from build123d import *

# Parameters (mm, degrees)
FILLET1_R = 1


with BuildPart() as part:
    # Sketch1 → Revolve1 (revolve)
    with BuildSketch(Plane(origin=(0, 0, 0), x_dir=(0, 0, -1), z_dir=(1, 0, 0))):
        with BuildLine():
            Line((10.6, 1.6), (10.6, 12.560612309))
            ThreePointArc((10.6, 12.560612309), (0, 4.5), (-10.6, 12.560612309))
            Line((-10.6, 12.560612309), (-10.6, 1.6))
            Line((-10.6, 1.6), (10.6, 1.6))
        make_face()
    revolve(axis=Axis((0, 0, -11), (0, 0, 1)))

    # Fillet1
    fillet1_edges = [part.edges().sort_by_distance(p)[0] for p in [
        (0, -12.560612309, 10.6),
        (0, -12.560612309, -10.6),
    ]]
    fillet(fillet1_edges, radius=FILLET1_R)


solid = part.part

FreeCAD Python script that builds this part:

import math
import FreeCAD as App
import Part
import Sketcher

V = App.Vector
Q = App.Units.Quantity


def edges_at(feature, points):
    """Names of the edges that pass closest to the given points."""
    edges = feature.Shape.Edges
    near = lambda p: min(range(len(edges)), key=lambda i: edges[i].distToShape(Part.Vertex(*p))[0])
    return sorted({f"Edge{near(p) + 1}" for p in points})

doc = App.newDocument("Part")
body = doc.addObject("PartDesign::Body", "Body")

sketch1 = doc.addObject("Sketcher::SketchObject", "Sketch")
body.addObject(sketch1)
sketch1.AttachmentSupport = (doc.YZ_Plane, [""])
sketch1.MapMode = "FlatFace"
sketch1.addGeometry([
    Part.LineSegment(V(2, -11, 0), V(13, -11, 0)),
    Part.ArcOfCircle(Part.Circle(V(16, 0, 0), V(0, 0, 1), 11), math.radians(105), math.radians(255)),
    Part.LineSegment(V(13, 11, 0), V(2, 11, 0)),
    Part.LineSegment(V(2, 11, 0), V(2, -11, 0)),
], False)
sketch1.addConstraint([
    Sketcher.Constraint("Coincident", 0, 2, 1, 2),
    Sketcher.Constraint("Coincident", 1, 1, 2, 1),
    Sketcher.Constraint("Coincident", 2, 2, 3, 1),
    Sketcher.Constraint("Coincident", 3, 2, 0, 1),
    Sketcher.Constraint("Horizontal", 0),
    Sketcher.Constraint("Horizontal", 2),
    Sketcher.Constraint("Vertical", 3),
    Sketcher.Constraint("Symmetric", 0, 2, 1, 1, -1),
    Sketcher.Constraint("Radius", 1, Q("11 mm")),
    Sketcher.Constraint("DistanceY", 3, 2, 3, 1, Q("21.2 mm")),
    Sketcher.Constraint("DistanceX", -1, 1, 1, 3, Q("15.5 mm")),
    Sketcher.Constraint("DistanceX", -1, 1, 2, 2, Q("1.6 mm")),
])
revolution = doc.addObject("PartDesign::Revolution", "Revolution")
body.addObject(revolution)
revolution.Profile = sketch1
revolution.ReferenceAxis = (sketch1, ["V_Axis"])
revolution.Angle = 360
doc.recompute()

fillet = doc.addObject("PartDesign::Fillet", "Fillet")
body.addObject(fillet)
fillet.Base = (revolution, edges_at(revolution, [(0, -12.561, 10.6), (0, -12.561, -10.6)]))
fillet.Radius = 1

doc.recompute()
